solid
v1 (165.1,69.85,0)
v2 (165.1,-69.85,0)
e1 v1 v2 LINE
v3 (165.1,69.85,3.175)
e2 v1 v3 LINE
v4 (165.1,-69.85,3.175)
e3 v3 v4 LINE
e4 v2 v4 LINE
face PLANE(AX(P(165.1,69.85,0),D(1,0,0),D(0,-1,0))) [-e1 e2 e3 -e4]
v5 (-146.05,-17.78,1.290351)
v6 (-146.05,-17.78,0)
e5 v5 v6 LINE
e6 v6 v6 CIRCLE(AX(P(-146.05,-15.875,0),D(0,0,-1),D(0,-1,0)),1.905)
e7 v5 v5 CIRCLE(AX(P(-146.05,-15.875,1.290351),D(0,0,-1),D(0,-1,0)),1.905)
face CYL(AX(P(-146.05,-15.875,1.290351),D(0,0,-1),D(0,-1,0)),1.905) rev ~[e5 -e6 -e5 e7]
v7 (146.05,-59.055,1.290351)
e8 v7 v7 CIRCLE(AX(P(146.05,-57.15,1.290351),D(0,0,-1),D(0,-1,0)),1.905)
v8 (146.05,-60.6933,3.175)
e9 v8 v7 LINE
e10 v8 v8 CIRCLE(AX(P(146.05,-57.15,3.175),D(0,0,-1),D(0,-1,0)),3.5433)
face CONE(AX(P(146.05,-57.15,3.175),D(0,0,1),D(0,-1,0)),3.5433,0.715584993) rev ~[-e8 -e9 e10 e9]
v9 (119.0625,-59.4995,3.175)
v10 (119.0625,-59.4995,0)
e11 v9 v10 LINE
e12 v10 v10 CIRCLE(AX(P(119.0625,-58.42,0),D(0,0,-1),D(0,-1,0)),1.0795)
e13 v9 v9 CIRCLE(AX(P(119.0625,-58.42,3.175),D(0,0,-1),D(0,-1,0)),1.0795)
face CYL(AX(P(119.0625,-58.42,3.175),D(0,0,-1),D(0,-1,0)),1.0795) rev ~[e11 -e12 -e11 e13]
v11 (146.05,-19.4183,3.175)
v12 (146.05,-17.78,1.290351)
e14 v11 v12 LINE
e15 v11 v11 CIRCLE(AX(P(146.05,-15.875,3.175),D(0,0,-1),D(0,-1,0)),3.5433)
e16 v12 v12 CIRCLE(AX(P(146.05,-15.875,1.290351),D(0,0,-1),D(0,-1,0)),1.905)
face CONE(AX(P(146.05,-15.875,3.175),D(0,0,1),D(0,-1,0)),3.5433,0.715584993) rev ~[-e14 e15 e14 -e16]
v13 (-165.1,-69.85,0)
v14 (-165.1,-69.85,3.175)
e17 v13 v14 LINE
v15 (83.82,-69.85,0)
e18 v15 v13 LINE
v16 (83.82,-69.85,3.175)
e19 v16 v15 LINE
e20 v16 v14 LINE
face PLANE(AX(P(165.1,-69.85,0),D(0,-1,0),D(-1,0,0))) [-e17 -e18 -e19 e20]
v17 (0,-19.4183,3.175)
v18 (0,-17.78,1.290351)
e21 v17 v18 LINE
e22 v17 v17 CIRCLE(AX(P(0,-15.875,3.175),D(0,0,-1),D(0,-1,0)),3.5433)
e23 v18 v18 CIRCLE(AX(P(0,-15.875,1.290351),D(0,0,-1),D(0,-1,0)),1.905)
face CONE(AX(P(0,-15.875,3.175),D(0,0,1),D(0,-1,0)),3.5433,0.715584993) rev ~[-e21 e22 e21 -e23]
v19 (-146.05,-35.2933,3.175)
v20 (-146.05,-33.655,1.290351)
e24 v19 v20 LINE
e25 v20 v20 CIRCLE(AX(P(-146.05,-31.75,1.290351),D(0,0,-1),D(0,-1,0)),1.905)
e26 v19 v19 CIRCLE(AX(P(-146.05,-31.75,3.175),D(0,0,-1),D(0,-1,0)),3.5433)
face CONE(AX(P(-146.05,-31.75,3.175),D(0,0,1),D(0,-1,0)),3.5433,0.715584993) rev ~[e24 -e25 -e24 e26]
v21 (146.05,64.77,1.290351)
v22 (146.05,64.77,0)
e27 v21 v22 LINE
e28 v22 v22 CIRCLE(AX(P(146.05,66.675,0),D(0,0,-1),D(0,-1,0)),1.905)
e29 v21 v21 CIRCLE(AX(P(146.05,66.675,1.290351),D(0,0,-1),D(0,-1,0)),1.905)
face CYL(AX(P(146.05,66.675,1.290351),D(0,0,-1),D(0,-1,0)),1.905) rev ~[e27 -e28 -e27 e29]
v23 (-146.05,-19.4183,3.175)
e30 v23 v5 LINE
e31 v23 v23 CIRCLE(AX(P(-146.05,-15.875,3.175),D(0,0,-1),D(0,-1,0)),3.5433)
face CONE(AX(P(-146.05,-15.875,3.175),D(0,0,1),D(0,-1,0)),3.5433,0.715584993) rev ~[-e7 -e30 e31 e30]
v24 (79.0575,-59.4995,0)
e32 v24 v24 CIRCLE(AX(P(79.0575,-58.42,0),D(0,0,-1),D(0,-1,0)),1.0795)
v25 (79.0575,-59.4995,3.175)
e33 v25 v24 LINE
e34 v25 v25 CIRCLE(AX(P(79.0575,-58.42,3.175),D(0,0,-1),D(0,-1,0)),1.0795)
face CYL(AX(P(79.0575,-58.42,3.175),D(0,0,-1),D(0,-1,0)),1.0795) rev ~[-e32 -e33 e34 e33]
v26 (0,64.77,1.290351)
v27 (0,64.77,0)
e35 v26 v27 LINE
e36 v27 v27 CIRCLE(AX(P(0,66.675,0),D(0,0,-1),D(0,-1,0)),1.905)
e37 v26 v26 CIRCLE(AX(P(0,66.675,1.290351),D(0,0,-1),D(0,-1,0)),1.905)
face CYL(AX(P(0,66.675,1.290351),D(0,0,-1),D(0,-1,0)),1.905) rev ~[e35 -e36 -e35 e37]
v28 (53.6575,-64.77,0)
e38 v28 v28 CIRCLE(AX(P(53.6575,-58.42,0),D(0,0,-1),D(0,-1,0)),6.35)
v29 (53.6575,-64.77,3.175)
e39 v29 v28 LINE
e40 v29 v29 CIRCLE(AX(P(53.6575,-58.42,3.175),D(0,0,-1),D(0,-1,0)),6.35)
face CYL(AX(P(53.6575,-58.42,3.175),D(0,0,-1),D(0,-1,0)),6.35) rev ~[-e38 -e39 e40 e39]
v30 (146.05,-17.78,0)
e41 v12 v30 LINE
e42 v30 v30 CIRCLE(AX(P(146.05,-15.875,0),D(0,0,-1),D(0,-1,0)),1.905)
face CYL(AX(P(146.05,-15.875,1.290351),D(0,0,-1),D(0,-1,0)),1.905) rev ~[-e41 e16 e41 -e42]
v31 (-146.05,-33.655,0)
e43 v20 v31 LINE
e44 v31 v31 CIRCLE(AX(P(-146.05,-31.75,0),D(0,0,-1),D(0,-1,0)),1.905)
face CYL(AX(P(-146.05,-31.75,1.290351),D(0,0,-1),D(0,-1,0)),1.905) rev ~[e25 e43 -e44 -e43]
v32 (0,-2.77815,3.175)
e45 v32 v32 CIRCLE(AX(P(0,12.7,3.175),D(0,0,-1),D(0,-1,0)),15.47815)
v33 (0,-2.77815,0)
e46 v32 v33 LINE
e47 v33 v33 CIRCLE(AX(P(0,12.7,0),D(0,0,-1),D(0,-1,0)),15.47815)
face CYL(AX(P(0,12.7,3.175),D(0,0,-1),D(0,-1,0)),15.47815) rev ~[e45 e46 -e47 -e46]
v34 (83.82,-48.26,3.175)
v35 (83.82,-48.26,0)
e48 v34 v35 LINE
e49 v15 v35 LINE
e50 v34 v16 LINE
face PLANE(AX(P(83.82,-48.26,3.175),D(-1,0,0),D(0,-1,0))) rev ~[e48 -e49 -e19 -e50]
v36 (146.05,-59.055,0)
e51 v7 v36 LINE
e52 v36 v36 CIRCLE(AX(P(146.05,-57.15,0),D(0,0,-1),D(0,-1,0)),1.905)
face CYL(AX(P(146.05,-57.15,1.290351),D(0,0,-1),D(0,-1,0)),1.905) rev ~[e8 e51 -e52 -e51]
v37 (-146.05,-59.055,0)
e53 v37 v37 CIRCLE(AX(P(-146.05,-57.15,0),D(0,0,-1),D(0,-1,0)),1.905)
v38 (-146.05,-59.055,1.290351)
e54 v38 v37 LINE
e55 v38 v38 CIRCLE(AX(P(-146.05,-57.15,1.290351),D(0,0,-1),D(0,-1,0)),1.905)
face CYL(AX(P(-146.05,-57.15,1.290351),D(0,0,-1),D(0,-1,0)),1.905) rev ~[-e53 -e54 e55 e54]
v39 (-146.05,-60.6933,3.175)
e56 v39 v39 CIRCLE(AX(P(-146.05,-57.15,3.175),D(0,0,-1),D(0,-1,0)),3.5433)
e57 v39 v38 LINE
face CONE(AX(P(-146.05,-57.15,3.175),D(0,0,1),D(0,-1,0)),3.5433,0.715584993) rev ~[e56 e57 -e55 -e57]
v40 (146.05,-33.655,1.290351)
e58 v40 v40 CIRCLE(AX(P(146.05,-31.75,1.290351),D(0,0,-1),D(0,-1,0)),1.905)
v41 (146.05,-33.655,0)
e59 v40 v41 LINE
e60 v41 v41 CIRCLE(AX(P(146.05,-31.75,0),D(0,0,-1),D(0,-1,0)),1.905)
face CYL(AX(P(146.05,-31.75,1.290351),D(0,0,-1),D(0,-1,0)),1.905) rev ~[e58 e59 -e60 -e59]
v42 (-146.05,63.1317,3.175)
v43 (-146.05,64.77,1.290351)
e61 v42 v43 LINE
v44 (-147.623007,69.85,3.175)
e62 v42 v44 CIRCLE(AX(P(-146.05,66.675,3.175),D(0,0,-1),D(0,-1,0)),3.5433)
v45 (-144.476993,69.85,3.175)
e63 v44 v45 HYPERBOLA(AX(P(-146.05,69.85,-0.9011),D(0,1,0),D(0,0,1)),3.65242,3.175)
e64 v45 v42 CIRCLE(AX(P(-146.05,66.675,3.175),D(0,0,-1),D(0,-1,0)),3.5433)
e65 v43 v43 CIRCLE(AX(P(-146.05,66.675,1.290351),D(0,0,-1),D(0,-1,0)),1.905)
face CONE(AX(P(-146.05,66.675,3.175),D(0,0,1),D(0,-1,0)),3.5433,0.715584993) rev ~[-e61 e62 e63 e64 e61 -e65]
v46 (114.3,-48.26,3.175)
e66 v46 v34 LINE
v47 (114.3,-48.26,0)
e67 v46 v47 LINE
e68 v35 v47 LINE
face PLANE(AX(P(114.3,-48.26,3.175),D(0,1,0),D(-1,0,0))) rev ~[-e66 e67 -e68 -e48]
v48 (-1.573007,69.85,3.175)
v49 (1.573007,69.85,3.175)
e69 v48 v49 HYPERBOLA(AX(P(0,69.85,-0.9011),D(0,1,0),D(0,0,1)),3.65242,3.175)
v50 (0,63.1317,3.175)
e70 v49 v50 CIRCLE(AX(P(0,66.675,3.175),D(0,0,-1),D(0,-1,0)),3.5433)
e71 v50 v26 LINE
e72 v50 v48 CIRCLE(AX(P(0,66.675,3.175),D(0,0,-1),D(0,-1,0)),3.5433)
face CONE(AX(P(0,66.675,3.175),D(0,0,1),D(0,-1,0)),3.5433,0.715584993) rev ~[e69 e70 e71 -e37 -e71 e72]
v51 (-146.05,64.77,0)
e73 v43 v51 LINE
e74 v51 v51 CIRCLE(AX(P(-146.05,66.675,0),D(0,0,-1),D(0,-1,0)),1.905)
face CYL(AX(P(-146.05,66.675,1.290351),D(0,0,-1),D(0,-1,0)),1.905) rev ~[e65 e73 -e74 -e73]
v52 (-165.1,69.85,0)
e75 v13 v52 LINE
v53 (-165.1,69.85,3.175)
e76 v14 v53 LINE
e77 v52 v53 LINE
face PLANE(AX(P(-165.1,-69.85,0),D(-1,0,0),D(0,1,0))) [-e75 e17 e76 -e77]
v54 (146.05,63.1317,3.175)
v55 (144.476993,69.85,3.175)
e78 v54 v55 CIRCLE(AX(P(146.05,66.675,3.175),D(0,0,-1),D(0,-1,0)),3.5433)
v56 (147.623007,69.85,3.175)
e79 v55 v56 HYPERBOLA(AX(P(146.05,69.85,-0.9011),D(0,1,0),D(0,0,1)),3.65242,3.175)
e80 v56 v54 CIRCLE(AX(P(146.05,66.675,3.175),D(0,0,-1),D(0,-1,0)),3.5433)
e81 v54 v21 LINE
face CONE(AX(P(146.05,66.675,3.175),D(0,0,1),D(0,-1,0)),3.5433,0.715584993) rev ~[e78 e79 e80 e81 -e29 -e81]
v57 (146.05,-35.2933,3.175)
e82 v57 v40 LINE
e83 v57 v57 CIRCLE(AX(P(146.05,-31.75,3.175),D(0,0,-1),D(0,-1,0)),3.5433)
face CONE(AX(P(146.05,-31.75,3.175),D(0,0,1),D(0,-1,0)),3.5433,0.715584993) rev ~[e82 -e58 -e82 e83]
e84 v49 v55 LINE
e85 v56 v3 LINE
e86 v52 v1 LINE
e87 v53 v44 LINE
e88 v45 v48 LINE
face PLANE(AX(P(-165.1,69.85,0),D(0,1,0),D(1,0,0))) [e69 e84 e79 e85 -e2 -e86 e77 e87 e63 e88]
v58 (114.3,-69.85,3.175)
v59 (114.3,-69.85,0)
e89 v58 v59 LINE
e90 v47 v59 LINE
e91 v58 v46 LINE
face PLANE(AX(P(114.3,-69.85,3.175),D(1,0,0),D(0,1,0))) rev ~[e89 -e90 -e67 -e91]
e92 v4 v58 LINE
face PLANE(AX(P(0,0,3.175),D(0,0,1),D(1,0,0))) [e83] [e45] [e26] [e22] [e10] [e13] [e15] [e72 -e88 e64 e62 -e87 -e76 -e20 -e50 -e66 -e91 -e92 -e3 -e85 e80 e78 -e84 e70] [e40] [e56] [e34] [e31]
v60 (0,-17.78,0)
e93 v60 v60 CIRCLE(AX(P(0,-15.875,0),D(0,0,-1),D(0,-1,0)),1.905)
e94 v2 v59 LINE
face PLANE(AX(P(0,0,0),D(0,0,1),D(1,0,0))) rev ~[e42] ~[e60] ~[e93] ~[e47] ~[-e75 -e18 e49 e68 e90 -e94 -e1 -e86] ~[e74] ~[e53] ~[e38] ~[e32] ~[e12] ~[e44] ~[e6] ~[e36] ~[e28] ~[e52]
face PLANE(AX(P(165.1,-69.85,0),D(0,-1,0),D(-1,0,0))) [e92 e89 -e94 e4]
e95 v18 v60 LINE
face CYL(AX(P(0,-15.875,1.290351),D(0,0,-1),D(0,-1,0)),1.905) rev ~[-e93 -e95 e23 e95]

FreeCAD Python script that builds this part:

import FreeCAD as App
import Part
import Sketcher
from FreeCAD import Vector
Q = App.Units.Quantity

doc = App.newDocument("Part")
body = doc.addObject("PartDesign::Body", "Body")

sketch1 = doc.addObject("Sketcher::SketchObject", "Sketch")
body.addObject(sketch1)
sketch1.AttachmentSupport = (doc.XY_Plane, [""])
sketch1.MapMode = "FlatFace"
sketch1.addGeometry(Part.LineSegment(Vector(165.1, 69.85, 0), Vector(-165.1, 69.85, 0)), False)
sketch1.addGeometry(Part.LineSegment(Vector(-165.1, 69.85, 0), Vector(-165.1, -69.85, 0)), False)
sketch1.addGeometry(Part.LineSegment(Vector(-165.1, -69.85, 0), Vector(165.1, -69.85, 0)), False)
sketch1.addGeometry(Part.LineSegment(Vector(165.1, -69.85, 0), Vector(165.1, 69.85, 0)), False)
sketch1.addConstraint(Sketcher.Constraint("Coincident", 0, 2, 1, 1))
sketch1.addConstraint(Sketcher.Constraint("Coincident", 1, 2, 2, 1))
sketch1.addConstraint(Sketcher.Constraint("Coincident", 2, 2, 3, 1))
sketch1.addConstraint(Sketcher.Constraint("Coincident", 3, 2, 0, 1))
sketch1.addConstraint(Sketcher.Constraint("Horizontal", 0))
sketch1.addConstraint(Sketcher.Constraint("Vertical", 1))
sketch1.addConstraint(Sketcher.Constraint("Horizontal", 2))
sketch1.addConstraint(Sketcher.Constraint("Vertical", 3))
sketch1.addConstraint(Sketcher.Constraint("Symmetric", 0, 2, 2, 2, -1, 1))
sketch1.addConstraint(Sketcher.Constraint("DistanceX", 0, 2, 0, 1, Q("13 in")))
sketch1.addConstraint(Sketcher.Constraint("DistanceY", 1, 2, 1, 1, Q("5.5 in")))
pad1 = doc.addObject("PartDesign::Pad", "Pad")
body.addObject(pad1)
pad1.Profile = sketch1
pad1.Length = Q("0.125 in")

sketch2 = doc.addObject("Sketcher::SketchObject", "Sketch001")
body.addObject(sketch2)
sketch2.AttachmentSupport = (doc.XY_Plane, [""])
sketch2.MapMode = "FlatFace"
sketch2.AttachmentOffset = App.Placement(Vector(0, 0, 0.125 * 25.4), App.Rotation())
sketch2.addGeometry(Part.Circle(Vector(-146.05, -15.875, 0), Vector(0, 0, 1), 1.905), False)
sketch2.addGeometry(Part.Circle(Vector(146.05, -15.875, 0), Vector(0, 0, 1), 1.905), False)
sketch2.addGeometry(Part.Circle(Vector(0, -15.875, 0), Vector(0, 0, 1), 1.905), False)
sketch2.addGeometry(Part.Circle(Vector(-146.05, -31.75, 0), Vector(0, 0, 1), 1.905), False)
sketch2.addGeometry(Part.Circle(Vector(-146.05, -57.15, 0), Vector(0, 0, 1), 1.905), False)
sketch2.addGeometry(Part.Circle(Vector(146.05, -31.75, 0), Vector(0, 0, 1), 1.905), False)
sketch2.addGeometry(Part.Circle(Vector(146.05, -57.15, 0), Vector(0, 0, 1), 1.905), False)
sketch2.addGeometry(Part.Circle(Vector(-146.05, 66.675, 0), Vector(0, 0, 1), 1.905), False)
sketch2.addGeometry(Part.Circle(Vector(146.05, 66.675, 0), Vector(0, 0, 1), 1.905), False)
sketch2.addGeometry(Part.Circle(Vector(0, 66.675, 0), Vector(0, 0, 1), 1.905), False)
sketch2.addConstraint(Sketcher.Constraint("Equal", 0, 1))
sketch2.addConstraint(Sketcher.Constraint("Equal", 1, 2))
sketch2.addConstraint(Sketcher.Constraint("Equal", 2, 3))
sketch2.addConstraint(Sketcher.Constraint("Equal", 3, 4))
sketch2.addConstraint(Sketcher.Constraint("Equal", 4, 5))
sketch2.addConstraint(Sketcher.Constraint("Equal", 5, 6))
sketch2.addConstraint(Sketcher.Constraint("Equal", 6, 7))
sketch2.addConstraint(Sketcher.Constraint("Equal", 7, 8))
sketch2.addConstraint(Sketcher.Constraint("Equal", 8, 9))
sketch2.addConstraint(Sketcher.Constraint("Symmetric", 0, 3, 1, 3, -2))
sketch2.addConstraint(Sketcher.Constraint("Symmetric", 3, 3, 5, 3, -2))
sketch2.addConstraint(Sketcher.Constraint("Symmetric", 4, 3, 6, 3, -2))
sketch2.addConstraint(Sketcher.Constraint("Symmetric", 7, 3, 8, 3, -2))
sketch2.addConstraint(Sketcher.Constraint("PointOnObject", 2, 3, -2))
sketch2.addConstraint(Sketcher.Constraint("PointOnObject", 9, 3, -2))
sketch2.addConstraint(Sketcher.Constraint("Horizontal", 1, 3, 2, 3))
sketch2.addConstraint(Sketcher.Constraint("Horizontal", 8, 3, 9, 3))
sketch2.addConstraint(Sketcher.Constraint("Vertical", 0, 3, 3, 3))
sketch2.addConstraint(Sketcher.Constraint("Vertical", 3, 3, 4, 3))
sketch2.addConstraint(Sketcher.Constraint("Vertical", 4, 3, 7, 3))
sketch2.addConstraint(Sketcher.Constraint("Diameter", 0, Q("0.15 in")))
sketch2.addConstraint(Sketcher.Constraint("DistanceY", 4, 3, 3, 3, Q("1 in")))
sketch2.addConstraint(Sketcher.Constraint("DistanceX", 0, 3, 1, 3, Q("11.5 in")))
sketch2.addConstraint(Sketcher.Constraint("DistanceY", 3, 3, -1, 1, Q("1.25 in")))
sketch2.addConstraint(Sketcher.Constraint("DistanceY", 0, 3, 7, 3, Q("3.25 in")))
sketch2.addConstraint(Sketcher.Constraint("DistanceY", 0, 3, -1, 1, Q("0.625 in")))
doc.recompute()
hole = doc.addObject("PartDesign::Hole", "Hole")
body.addObject(hole)
hole.Profile = sketch2
hole.ThreadType = "None"
hole.Diameter = Q("0.15 in")
hole.DepthType = "ThroughAll"
hole.HoleCutType = "Countersink"
hole.HoleCutDiameter = Q("0.279 in")
hole.HoleCutCountersinkAngle = 82

sketch3 = doc.addObject("Sketcher::SketchObject", "Sketch002")
body.addObject(sketch3)
sketch3.AttachmentSupport = (doc.XY_Plane, [""])
sketch3.MapMode = "FlatFace"
sketch3.AttachmentOffset = App.Placement(Vector(0, 0, 0.125 * 25.4), App.Rotation())
sketch3.addGeometry(Part.Circle(Vector(0, 12.7, 0), Vector(0, 0, 1), 15.47815), False)
sketch3.addConstraint(Sketcher.Constraint("PointOnObject", 0, 3, -2))
sketch3.addConstraint(Sketcher.Constraint("Diameter", 0, Q("1.218752 in")))
sketch3.addConstraint(Sketcher.Constraint("DistanceY", -1, 1, 0, 3, Q("0.5 in")))
doc.recompute()
hole2 = doc.addObject("PartDesign::Hole", "Hole001")
body.addObject(hole2)
hole2.Profile = sketch3
hole2.ThreadType = "None"
hole2.Diameter = Q("1.218752 in")
hole2.DepthType = "ThroughAll"

sketch4 = doc.addObject("Sketcher::SketchObject", "Sketch003")
body.addObject(sketch4)
sketch4.AttachmentSupport = (doc.XY_Plane, [""])
sketch4.MapMode = "FlatFace"
sketch4.AttachmentOffset = App.Placement(Vector(0, 0, 0.125 * 25.4), App.Rotation())
sketch4.addGeometry(Part.LineSegment(Vector(83.82, -69.85, 0), Vector(114.3, -69.85, 0)), False)
sketch4.addGeometry(Part.LineSegment(Vector(114.3, -69.85, 0), Vector(114.3, -48.26, 0)), False)
sketch4.addGeometry(Part.LineSegment(Vector(114.3, -48.26, 0), Vector(83.82, -48.26, 0)), False)
sketch4.addGeometry(Part.LineSegment(Vector(83.82, -48.26, 0), Vector(83.82, -69.85, 0)), False)
sketch4.addConstraint(Sketcher.Constraint("Coincident", 0, 2, 1, 1))
sketch4.addConstraint(Sketcher.Constraint("Coincident", 1, 2, 2, 1))
sketch4.addConstraint(Sketcher.Constraint("Coincident", 2, 2, 3, 1))
sketch4.addConstraint(Sketcher.Constraint("Coincident", 3, 2, 0, 1))
sketch4.addConstraint(Sketcher.Constraint("Horizontal", 0))
sketch4.addConstraint(Sketcher.Constraint("Vertical", 1))
sketch4.addConstraint(Sketcher.Constraint("Horizontal", 2))
sketch4.addConstraint(Sketcher.Constraint("Vertical", 3))
sketch4.addConstraint(Sketcher.Constraint("DistanceX", 0, 1, 0, 2, Q("1.2 in")))
sketch4.addConstraint(Sketcher.Constraint("DistanceY", 1, 1, 1, 2, Q("0.85 in")))
sketch4.addConstraint(Sketcher.Constraint("DistanceX", -1, 1, 0, 2, Q("4.5 in")))
sketch4.addConstraint(Sketcher.Constraint("DistanceY", 1, 2, -1, 1, Q("1.9 in")))
pocket1 = doc.addObject("PartDesign::Pocket", "Pocket")
body.addObject(pocket1)
pocket1.Profile = sketch4
pocket1.Type = "UpToFirst"

sketch5 = doc.addObject("Sketcher::SketchObject", "Sketch004")
body.addObject(sketch5)
sketch5.AttachmentSupport = (doc.XY_Plane, [""])
sketch5.MapMode = "FlatFace"
sketch5.AttachmentOffset = App.Placement(Vector(0, 0, 0.125 * 25.4), App.Rotation())
sketch5.addGeometry(Part.Circle(Vector(79.0575, -58.42, 0), Vector(0, 0, 1), 1.0795), False)
sketch5.addGeometry(Part.Circle(Vector(119.0625, -58.42, 0), Vector(0, 0, 1), 1.0795), False)
sketch5.addConstraint(Sketcher.Constraint("Equal", 0, 1))
sketch5.addConstraint(Sketcher.Constraint("Horizontal", 0, 3, 1, 3))
sketch5.addConstraint(Sketcher.Constraint("Diameter", 0, Q("0.085 in")))
sketch5.addConstraint(Sketcher.Constraint("DistanceY", 0, 3, -1, 1, Q("2.3 in")))
sketch5.addConstraint(Sketcher.Constraint("DistanceX", -1, 1, 1, 3, Q("4.6875 in")))
sketch5.addConstraint(Sketcher.Constraint("DistanceX", 0, 3, 1, 3, Q("1.575 in")))
doc.recompute()
hole3 = doc.addObject("PartDesign::Hole", "Hole002")
body.addObject(hole3)
hole3.Profile = sketch5
hole3.ThreadType = "None"
hole3.Diameter = Q("0.085 in")
hole3.DepthType = "ThroughAll"

sketch6 = doc.addObject("Sketcher::SketchObject", "Sketch005")
body.addObject(sketch6)
sketch6.AttachmentSupport = (doc.XY_Plane, [""])
sketch6.MapMode = "FlatFace"
sketch6.AttachmentOffset = App.Placement(Vector(0, 0, 0.125 * 25.4), App.Rotation())
sketch6.addGeometry(Part.Circle(Vector(53.6575, -58.42, 0), Vector(0, 0, 1), 6.35), False)
sketch6.addConstraint(Sketcher.Constraint("Diameter", 0, Q("0.5 in")))
sketch6.addConstraint(Sketcher.Constraint("DistanceY", 0, 3, -1, 1, Q("2.3 in")))
sketch6.addConstraint(Sketcher.Constraint("DistanceX", -1, 1, 0, 3, Q("2.1125 in")))
doc.recompute()
hole4 = doc.addObject("PartDesign::Hole", "Hole003")
body.addObject(hole4)
hole4.Profile = sketch6
hole4.ThreadType = "None"
hole4.Diameter = Q("0.5 in")
hole4.DepthType = "ThroughAll"

doc.recompute()
